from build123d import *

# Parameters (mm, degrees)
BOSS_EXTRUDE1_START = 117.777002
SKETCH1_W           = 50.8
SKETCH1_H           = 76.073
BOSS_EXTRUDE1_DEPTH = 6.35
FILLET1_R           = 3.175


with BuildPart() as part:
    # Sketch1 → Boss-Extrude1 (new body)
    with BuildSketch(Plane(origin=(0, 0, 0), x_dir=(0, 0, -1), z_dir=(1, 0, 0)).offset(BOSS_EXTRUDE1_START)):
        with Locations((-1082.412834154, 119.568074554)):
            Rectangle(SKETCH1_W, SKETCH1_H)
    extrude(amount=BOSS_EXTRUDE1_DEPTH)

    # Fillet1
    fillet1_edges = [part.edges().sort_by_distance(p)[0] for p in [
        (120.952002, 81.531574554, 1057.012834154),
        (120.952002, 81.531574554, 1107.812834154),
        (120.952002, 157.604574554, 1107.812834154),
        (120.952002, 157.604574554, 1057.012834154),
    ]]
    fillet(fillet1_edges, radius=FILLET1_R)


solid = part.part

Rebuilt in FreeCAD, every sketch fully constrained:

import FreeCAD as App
import Part
import Sketcher

V = App.Vector
Q = App.Units.Quantity


def edges_at(feature, points):
    """Names of the edges that pass closest to the given points."""
    edges = feature.Shape.Edges
    near = lambda p: min(range(len(edges)), key=lambda i: edges[i].distToShape(Part.Vertex(*p))[0])
    return sorted({f"Edge{near(p) + 1}" for p in points})

doc = App.newDocument("Part")
body = doc.addObject("PartDesign::Body", "Body")

# Sketch on YZ plane
sketch1 = body.newObject("Sketcher::SketchObject", "Sketch")
sketch1.AttachmentSupport = (doc.getObject("YZ_Plane"), [""])
sketch1.MapMode = "FlatFace"
sketch1.AttachmentOffset = App.Placement(V(0, 0, 117.777002), App.Rotation())
sketch1.addGeometry(Part.LineSegment(V(158, 1108, 0), V(82, 1108, 0)), False)
sketch1.addGeometry(Part.LineSegment(V(82, 1108, 0), V(82, 1057, 0)), False)
sketch1.addGeometry(Part.LineSegment(V(82, 1057, 0), V(158, 1057, 0)), False)
sketch1.addGeometry(Part.LineSegment(V(158, 1057, 0), V(158, 1108, 0)), False)
sketch1.addConstraint(Sketcher.Constraint("Coincident", 0, 2, 1, 1))
sketch1.addConstraint(Sketcher.Constraint("Coincident", 1, 2, 2, 1))
sketch1.addConstraint(Sketcher.Constraint("Coincident", 2, 2, 3, 1))
sketch1.addConstraint(Sketcher.Constraint("Coincident", 3, 2, 0, 1))
sketch1.addConstraint(Sketcher.Constraint("Horizontal", 0))
sketch1.addConstraint(Sketcher.Constraint("Vertical", 1))
sketch1.addConstraint(Sketcher.Constraint("Horizontal", 2))
sketch1.addConstraint(Sketcher.Constraint("Vertical", 3))
sketch1.addConstraint(Sketcher.Constraint("DistanceY", 1, 2, 1, 1, Q("2 in")))
sketch1.addConstraint(Sketcher.Constraint("DistanceX", 0, 2, 0, 1, Q("2.995 in")))
sketch1.addConstraint(Sketcher.Constraint("DistanceX", -1, 1, 0, 2, Q("81.531575 mm")))
sketch1.addConstraint(Sketcher.Constraint("DistanceY", -1, 1, 0, 2, Q("1107.812834 mm")))
pad1 = body.newObject("PartDesign::Pad", "Pad")
pad1.Profile = sketch1
pad1.Length = Q("0.25 in")
doc.recompute()

fillet = body.newObject("PartDesign::Fillet", "Fillet")
fillet.Base = (pad1, edges_at(pad1, [
    (120.952, 81.532, 1057.013),
    (120.952, 81.532, 1107.813),
    (120.952, 157.605, 1107.813),
    (120.952, 157.605, 1057.013),
]))
fillet.Radius = Q("0.125 in")

doc.recompute()
